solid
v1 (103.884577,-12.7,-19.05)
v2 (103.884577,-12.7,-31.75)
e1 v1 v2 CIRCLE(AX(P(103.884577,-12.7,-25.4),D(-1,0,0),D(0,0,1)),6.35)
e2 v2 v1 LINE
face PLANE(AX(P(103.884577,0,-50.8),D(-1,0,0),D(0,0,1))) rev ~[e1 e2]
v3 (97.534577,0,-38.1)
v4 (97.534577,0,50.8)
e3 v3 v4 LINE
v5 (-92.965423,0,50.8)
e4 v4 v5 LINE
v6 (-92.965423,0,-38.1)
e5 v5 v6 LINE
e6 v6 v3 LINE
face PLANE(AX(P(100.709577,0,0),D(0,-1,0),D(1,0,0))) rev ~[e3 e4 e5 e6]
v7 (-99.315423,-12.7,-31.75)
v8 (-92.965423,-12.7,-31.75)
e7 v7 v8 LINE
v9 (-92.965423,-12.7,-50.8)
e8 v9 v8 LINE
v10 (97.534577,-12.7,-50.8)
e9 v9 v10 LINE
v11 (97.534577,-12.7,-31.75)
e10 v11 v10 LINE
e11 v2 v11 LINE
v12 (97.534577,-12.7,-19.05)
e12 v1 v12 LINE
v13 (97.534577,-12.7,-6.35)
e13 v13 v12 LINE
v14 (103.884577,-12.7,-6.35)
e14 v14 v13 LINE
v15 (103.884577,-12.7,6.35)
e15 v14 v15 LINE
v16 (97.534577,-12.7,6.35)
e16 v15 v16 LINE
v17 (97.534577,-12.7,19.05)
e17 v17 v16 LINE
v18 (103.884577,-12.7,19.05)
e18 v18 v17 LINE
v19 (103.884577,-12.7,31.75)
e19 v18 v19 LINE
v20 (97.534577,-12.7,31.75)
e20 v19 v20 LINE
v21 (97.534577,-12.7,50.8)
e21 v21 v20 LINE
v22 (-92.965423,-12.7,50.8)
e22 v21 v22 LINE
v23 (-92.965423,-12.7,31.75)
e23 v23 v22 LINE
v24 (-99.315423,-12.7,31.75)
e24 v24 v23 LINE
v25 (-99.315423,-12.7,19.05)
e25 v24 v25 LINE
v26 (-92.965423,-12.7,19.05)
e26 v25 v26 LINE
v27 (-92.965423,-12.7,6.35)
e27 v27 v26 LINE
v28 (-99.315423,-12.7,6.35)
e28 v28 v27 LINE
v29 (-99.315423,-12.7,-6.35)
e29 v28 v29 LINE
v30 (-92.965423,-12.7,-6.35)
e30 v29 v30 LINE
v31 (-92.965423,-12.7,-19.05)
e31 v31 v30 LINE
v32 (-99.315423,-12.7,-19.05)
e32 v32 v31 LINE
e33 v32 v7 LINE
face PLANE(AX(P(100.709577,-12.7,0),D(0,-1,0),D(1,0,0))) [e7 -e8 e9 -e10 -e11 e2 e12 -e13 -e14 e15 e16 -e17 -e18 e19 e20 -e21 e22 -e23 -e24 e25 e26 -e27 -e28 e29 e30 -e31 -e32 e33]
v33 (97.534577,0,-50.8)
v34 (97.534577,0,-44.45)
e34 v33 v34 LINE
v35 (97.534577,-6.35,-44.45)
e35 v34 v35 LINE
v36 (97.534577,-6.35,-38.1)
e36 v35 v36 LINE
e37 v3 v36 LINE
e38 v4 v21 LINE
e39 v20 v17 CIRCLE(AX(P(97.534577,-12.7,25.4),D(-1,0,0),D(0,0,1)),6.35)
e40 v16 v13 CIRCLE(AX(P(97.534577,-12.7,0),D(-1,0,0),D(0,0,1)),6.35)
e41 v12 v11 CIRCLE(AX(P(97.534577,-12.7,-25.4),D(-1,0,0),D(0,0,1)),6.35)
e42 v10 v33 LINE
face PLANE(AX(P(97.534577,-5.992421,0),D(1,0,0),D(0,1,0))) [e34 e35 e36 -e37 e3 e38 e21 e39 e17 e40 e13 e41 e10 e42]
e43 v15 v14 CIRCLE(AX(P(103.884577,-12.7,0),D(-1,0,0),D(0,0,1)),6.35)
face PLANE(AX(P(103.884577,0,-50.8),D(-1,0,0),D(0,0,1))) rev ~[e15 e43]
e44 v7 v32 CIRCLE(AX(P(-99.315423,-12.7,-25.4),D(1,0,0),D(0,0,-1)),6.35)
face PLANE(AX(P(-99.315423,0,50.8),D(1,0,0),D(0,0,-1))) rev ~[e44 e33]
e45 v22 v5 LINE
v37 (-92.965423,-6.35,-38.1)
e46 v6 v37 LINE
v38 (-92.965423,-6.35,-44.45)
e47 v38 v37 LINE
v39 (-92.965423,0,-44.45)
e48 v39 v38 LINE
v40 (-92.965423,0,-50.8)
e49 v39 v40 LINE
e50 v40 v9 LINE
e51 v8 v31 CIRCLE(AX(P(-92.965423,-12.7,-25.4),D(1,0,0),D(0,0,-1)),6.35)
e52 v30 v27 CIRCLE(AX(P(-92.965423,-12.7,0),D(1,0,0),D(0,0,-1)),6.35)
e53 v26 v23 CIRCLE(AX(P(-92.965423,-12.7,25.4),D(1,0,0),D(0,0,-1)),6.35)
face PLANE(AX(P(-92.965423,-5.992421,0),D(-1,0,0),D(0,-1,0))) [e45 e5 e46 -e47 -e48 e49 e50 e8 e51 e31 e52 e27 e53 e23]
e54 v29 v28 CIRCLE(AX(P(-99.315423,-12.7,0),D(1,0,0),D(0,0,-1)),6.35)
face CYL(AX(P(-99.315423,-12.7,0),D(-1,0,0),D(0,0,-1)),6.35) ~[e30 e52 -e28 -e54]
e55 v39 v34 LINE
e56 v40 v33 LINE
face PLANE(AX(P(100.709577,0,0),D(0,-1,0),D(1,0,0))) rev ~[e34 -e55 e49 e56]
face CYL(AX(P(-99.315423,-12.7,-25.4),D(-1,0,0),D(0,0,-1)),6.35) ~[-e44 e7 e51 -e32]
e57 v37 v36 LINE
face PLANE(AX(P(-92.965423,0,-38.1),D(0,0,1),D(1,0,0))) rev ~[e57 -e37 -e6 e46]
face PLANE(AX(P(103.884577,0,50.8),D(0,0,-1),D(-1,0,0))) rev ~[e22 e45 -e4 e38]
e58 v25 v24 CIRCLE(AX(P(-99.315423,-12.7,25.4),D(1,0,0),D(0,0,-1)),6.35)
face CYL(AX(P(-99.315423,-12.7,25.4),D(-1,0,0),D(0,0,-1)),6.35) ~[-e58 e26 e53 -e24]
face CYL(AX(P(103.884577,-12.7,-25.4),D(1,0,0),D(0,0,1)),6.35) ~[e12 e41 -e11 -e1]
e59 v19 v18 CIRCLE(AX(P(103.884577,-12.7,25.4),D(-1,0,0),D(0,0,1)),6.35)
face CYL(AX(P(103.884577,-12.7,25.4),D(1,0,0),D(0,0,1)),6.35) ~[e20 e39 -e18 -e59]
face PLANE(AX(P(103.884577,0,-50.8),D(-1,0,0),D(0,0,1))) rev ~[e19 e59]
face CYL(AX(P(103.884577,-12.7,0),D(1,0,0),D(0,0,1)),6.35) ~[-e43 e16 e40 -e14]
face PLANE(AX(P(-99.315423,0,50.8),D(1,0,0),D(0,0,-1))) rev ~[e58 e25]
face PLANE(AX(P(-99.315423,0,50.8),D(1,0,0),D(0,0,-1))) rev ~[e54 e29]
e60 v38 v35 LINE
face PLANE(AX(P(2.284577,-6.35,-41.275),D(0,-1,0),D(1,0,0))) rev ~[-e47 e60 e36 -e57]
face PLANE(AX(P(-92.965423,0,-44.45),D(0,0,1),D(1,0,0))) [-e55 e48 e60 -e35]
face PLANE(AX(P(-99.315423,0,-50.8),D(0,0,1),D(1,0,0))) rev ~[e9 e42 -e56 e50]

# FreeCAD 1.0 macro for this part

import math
import FreeCAD as App
import Part
import Sketcher
from FreeCAD import Vector
Q = App.Units.Quantity


def add_polygon(sketch, points):
    """Adds a closed chain of lines whose ends are joined by coincident constraints."""
    first, n = sketch.GeometryCount, len(points)
    for a, b in zip(points, points[1:] + points[:1]):
        sketch.addGeometry(Part.LineSegment(App.Vector(*a, 0), App.Vector(*b, 0)), False)
    for i in range(n):
        sketch.addConstraint(Sketcher.Constraint("Coincident", first + i, 2, first + (i + 1) % n, 1))

doc = App.newDocument("Part")
body = doc.addObject("PartDesign::Body", "Body")

sketch1 = doc.addObject("Sketcher::SketchObject", "Sketch")
body.addObject(sketch1)
sketch1.AttachmentSupport = (doc.XZ_Plane, [""])
sketch1.MapMode = "FlatFace"
add_polygon(sketch1, [(104, -51), (104, 51), (-99, 51), (-99, -51)])
sketch1.addConstraint(Sketcher.Constraint("Vertical", 0))
sketch1.addConstraint(Sketcher.Constraint("Horizontal", 1))
sketch1.addConstraint(Sketcher.Constraint("Vertical", 2))
sketch1.addConstraint(Sketcher.Constraint("Horizontal", 3))
sketch1.addConstraint(Sketcher.Constraint("DistanceX", 1, 2, 1, 1, Q("8 in")))
sketch1.addConstraint(Sketcher.Constraint("DistanceY", 0, 1, 0, 2, Q("4 in")))
sketch1.addConstraint(Sketcher.Constraint("DistanceY", -1, 1, 0, 2, Q("2 in")))
sketch1.addConstraint(Sketcher.Constraint("DistanceX", -1, 1, 0, 2, 103.884577))
pad1 = doc.addObject("PartDesign::Pad", "Pad")
body.addObject(pad1)
pad1.Profile = sketch1
pad1.Length = Q("0.5 in")

sketch2 = doc.addObject("Sketcher::SketchObject", "Sketch001")
body.addObject(sketch2)
sketch2.AttachmentSupport = (doc.XZ_Plane, [""])
sketch2.MapMode = "FlatFace"
add_polygon(sketch2, [(-93, -38), (-93, -44), (98, -44), (98, -38)])
sketch2.addConstraint(Sketcher.Constraint("Vertical", 0))
sketch2.addConstraint(Sketcher.Constraint("Horizontal", 1))
sketch2.addConstraint(Sketcher.Constraint("Vertical", 2))
sketch2.addConstraint(Sketcher.Constraint("Horizontal", 3))
sketch2.addConstraint(Sketcher.Constraint("DistanceX", 1, 1, 1, 2, Q("7.5 in")))
sketch2.addConstraint(Sketcher.Constraint("DistanceY", 0, 2, 0, 1, Q("0.25 in")))
sketch2.addConstraint(Sketcher.Constraint("DistanceY", 2, 2, -1, 1, Q("1.5 in")))
sketch2.addConstraint(Sketcher.Constraint("DistanceX", 0, 2, -1, 1, 92.965423))
pocket1 = doc.addObject("PartDesign::Pocket", "Pocket")
body.addObject(pocket1)
pocket1.Profile = sketch2
pocket1.Length = Q("0.25 in")
pocket1.Reversed = True

sketch3 = doc.addObject("Sketcher::SketchObject", "Sketch002")
body.addObject(sketch3)
sketch3.AttachmentSupport = (doc.YZ_Plane, [""])
sketch3.MapMode = "FlatFace"
sketch3.AttachmentOffset = App.Placement(Vector(0, 0, -99.315423), App.Rotation())
sketch3.addGeometry(Part.ArcOfCircle(Part.Circle(Vector(-13, 25, 0), Vector(0, 0, 1), 6), math.radians(-90), math.radians(90)), False)
sketch3.addGeometry(Part.LineSegment(Vector(-13, 32, 0), Vector(-13, 51, 0)), False)
sketch3.addGeometry(Part.LineSegment(Vector(-13, 51, 0), Vector(0, 51, 0)), False)
sketch3.addGeometry(Part.LineSegment(Vector(0, 51, 0), Vector(0, -51, 0)), False)
sketch3.addGeometry(Part.LineSegment(Vector(0, -51, 0), Vector(-13, -51, 0)), False)
sketch3.addGeometry(Part.LineSegment(Vector(-13, -51, 0), Vector(-13, -32, 0)), False)
sketch3.addGeometry(Part.ArcOfCircle(Part.Circle(Vector(-13, -25, 0), Vector(0, 0, 1), 6), math.radians(-90), math.radians(90)), False)
sketch3.addGeometry(Part.LineSegment(Vector(-13, -19, 0), Vector(-13, -6, 0)), False)
sketch3.addGeometry(Part.ArcOfCircle(Part.Circle(Vector(-13, 0, 0), Vector(0, 0, 1), 6), math.radians(-90), math.radians(90)), False)
sketch3.addGeometry(Part.LineSegment(Vector(-13, 6, 0), Vector(-13, 19, 0)), False)
sketch3.addConstraint(Sketcher.Constraint("Coincident", 0, 2, 1, 1))
sketch3.addConstraint(Sketcher.Constraint("Coincident", 1, 2, 2, 1))
sketch3.addConstraint(Sketcher.Constraint("Coincident", 2, 2, 3, 1))
sketch3.addConstraint(Sketcher.Constraint("Coincident", 3, 2, 4, 1))
sketch3.addConstraint(Sketcher.Constraint("Coincident", 4, 2, 5, 1))
sketch3.addConstraint(Sketcher.Constraint("Coincident", 5, 2, 6, 1))
sketch3.addConstraint(Sketcher.Constraint("Coincident", 6, 2, 7, 1))
sketch3.addConstraint(Sketcher.Constraint("Coincident", 7, 2, 8, 1))
sketch3.addConstraint(Sketcher.Constraint("Coincident", 8, 2, 9, 1))
sketch3.addConstraint(Sketcher.Constraint("Coincident", 9, 2, 0, 1))
sketch3.addConstraint(Sketcher.Constraint("Vertical", 1))
sketch3.addConstraint(Sketcher.Constraint("Horizontal", 2))
sketch3.addConstraint(Sketcher.Constraint("Vertical", 3))
sketch3.addConstraint(Sketcher.Constraint("Horizontal", 4))
sketch3.addConstraint(Sketcher.Constraint("Vertical", 5))
sketch3.addConstraint(Sketcher.Constraint("Vertical", 7))
sketch3.addConstraint(Sketcher.Constraint("Vertical", 9))
sketch3.addConstraint(Sketcher.Constraint("Equal", 0, 6))
sketch3.addConstraint(Sketcher.Constraint("Equal", 6, 8))
sketch3.addConstraint(Sketcher.Constraint("Symmetric", 2, 2, 3, 2, -1, 1))
sketch3.addConstraint(Sketcher.Constraint("Symmetric", 0, 3, 6, 3, -1))
sketch3.addConstraint(Sketcher.Constraint("Symmetric", 7, 2, 8, 2, -1))
sketch3.addConstraint(Sketcher.Constraint("Vertical", 6, 3, 8, 3))
sketch3.addConstraint(Sketcher.Constraint("Vertical", 8, 3, 0, 2))
sketch3.addConstraint(Sketcher.Constraint("Vertical", 1, 2, 4, 2))
sketch3.addConstraint(Sketcher.Constraint("Vertical", 5, 2, 6, 2))
sketch3.addConstraint(Sketcher.Constraint("Equal", 4, 7))
sketch3.addConstraint(Sketcher.Constraint("DistanceY", 3, 2, 3, 1, Q("4 in")))
sketch3.addConstraint(Sketcher.Constraint("Radius", 0, Q("0.25 in")))
sketch3.addConstraint(Sketcher.Constraint("DistanceX", 2, 1, 2, 2, Q("0.5 in")))
pocket2 = doc.addObject("PartDesign::Pocket", "Pocket001")
body.addObject(pocket2)
pocket2.Profile = sketch3
pocket2.Length = Q("0.25 in")
pocket2.Reversed = True

sketch4 = doc.addObject("Sketcher::SketchObject", "Sketch003")
body.addObject(sketch4)
sketch4.AttachmentSupport = (doc.YZ_Plane, [""])
sketch4.MapMode = "FlatFace"
sketch4.AttachmentOffset = App.Placement(Vector(0, 0, 103.884577), App.Rotation())
sketch4.addGeometry(Part.ArcOfCircle(Part.Circle(Vector(-13, 25, 0), Vector(0, 0, 1), 6), math.radians(-90), math.radians(90)), False)
sketch4.addGeometry(Part.LineSegment(Vector(-13, 19, 0), Vector(-13, 6, 0)), False)
sketch4.addGeometry(Part.ArcOfCircle(Part.Circle(Vector(-13, 0, 0), Vector(0, 0, 1), 6), math.radians(-90), math.radians(90)), False)
sketch4.addGeometry(Part.LineSegment(Vector(-13, -6, 0), Vector(-13, -19, 0)), False)
sketch4.addGeometry(Part.ArcOfCircle(Part.Circle(Vector(-13, -25, 0), Vector(0, 0, 1), 6), math.radians(-90), math.radians(90)), False)
sketch4.addGeometry(Part.LineSegment(Vector(-13, -32, 0), Vector(-13, -51, 0)), False)
sketch4.addGeometry(Part.LineSegment(Vector(-13, -51, 0), Vector(0, -51, 0)), False)
sketch4.addGeometry(Part.LineSegment(Vector(0, -51, 0), Vector(0, 51, 0)), False)
sketch4.addGeometry(Part.LineSegment(Vector(0, 51, 0), Vector(-13, 51, 0)), False)
sketch4.addGeometry(Part.LineSegment(Vector(-13, 51, 0), Vector(-13, 32, 0)), False)
sketch4.addConstraint(Sketcher.Constraint("Coincident", 0, 1, 1, 1))
sketch4.addConstraint(Sketcher.Constraint("Coincident", 1, 2, 2, 2))
sketch4.addConstraint(Sketcher.Constraint("Coincident", 2, 1, 3, 1))
sketch4.addConstraint(Sketcher.Constraint("Coincident", 3, 2, 4, 2))
sketch4.addConstraint(Sketcher.Constraint("Coincident", 4, 1, 5, 1))
sketch4.addConstraint(Sketcher.Constraint("Coincident", 5, 2, 6, 1))
sketch4.addConstraint(Sketcher.Constraint("Coincident", 6, 2, 7, 1))
sketch4.addConstraint(Sketcher.Constraint("Coincident", 7, 2, 8, 1))
sketch4.addConstraint(Sketcher.Constraint("Coincident", 8, 2, 9, 1))
sketch4.addConstraint(Sketcher.Constraint("Coincident", 9, 2, 0, 2))
sketch4.addConstraint(Sketcher.Constraint("Vertical", 1))
sketch4.addConstraint(Sketcher.Constraint("Vertical", 3))
sketch4.addConstraint(Sketcher.Constraint("Vertical", 5))
sketch4.addConstraint(Sketcher.Constraint("Horizontal", 6))
sketch4.addConstraint(Sketcher.Constraint("Vertical", 7))
sketch4.addConstraint(Sketcher.Constraint("Horizontal", 8))
sketch4.addConstraint(Sketcher.Constraint("Vertical", 9))
sketch4.addConstraint(Sketcher.Constraint("Equal", 0, 2))
sketch4.addConstraint(Sketcher.Constraint("Equal", 2, 4))
sketch4.addConstraint(Sketcher.Constraint("Symmetric", 6, 2, 7, 2, -1, 1))
sketch4.addConstraint(Sketcher.Constraint("Symmetric", 0, 3, 4, 3, -1))
sketch4.addConstraint(Sketcher.Constraint("Symmetric", 1, 2, 2, 1, -1))
sketch4.addConstraint(Sketcher.Constraint("Vertical", 0, 3, 2, 3))
sketch4.addConstraint(Sketcher.Constraint("Vertical", 4, 3, 0, 1))
sketch4.addConstraint(Sketcher.Constraint("Vertical", 3, 2, 4, 1))
sketch4.addConstraint(Sketcher.Constraint("Vertical", 5, 2, 8, 2))
sketch4.addConstraint(Sketcher.Constraint("Equal", 8, 1))
sketch4.addConstraint(Sketcher.Constraint("DistanceY", 7, 1, 7, 2, Q("4 in")))
sketch4.addConstraint(Sketcher.Constraint("Radius", 0, Q("0.25 in")))
sketch4.addConstraint(Sketcher.Constraint("DistanceX", 6, 1, 6, 2, Q("0.5 in")))
pocket3 = doc.addObject("PartDesign::Pocket", "Pocket002")
body.addObject(pocket3)
pocket3.Profile = sketch4
pocket3.Length = Q("0.25 in")

doc.recompute()
